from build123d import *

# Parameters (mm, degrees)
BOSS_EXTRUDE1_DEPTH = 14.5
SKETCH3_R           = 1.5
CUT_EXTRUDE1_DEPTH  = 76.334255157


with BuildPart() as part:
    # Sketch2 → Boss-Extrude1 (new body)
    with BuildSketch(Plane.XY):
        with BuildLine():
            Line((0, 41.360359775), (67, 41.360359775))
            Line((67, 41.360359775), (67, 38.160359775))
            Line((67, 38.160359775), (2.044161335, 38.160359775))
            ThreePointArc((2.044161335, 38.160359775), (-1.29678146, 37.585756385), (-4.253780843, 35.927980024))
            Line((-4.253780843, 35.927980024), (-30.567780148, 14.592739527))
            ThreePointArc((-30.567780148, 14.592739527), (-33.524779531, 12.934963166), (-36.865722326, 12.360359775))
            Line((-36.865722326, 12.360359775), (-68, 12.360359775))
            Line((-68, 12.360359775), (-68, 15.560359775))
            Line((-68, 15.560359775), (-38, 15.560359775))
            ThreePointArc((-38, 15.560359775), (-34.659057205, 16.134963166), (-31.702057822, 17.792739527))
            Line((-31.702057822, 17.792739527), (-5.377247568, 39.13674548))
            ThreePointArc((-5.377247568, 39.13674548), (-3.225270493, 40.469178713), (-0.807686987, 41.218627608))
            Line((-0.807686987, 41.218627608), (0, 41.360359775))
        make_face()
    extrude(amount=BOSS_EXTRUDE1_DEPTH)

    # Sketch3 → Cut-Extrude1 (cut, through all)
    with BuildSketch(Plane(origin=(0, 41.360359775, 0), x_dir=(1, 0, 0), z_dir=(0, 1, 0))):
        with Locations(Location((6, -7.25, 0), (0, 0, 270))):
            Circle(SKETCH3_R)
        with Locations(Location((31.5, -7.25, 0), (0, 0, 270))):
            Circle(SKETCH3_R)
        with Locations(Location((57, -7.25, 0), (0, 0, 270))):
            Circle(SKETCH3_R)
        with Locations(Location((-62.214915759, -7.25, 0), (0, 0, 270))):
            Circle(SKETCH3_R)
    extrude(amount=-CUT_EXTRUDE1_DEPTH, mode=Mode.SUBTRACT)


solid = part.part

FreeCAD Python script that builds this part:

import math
import FreeCAD as App
import Part
import Sketcher

V = App.Vector

doc = App.newDocument("Part")
params = doc.addObject("Spreadsheet::Sheet", "Params")
for row, (alias, value) in enumerate([
    ("sketch1_radius", "10 mm"),
    ("sketch1_width", "67 mm"),
    ("sketch1_width2", "30 mm"),
    ("sketch1_height", "3.2 mm"),
    ("pad1_length", "14.5 mm"),
    ("sketch2_diameter", "3 mm"),
], start=1):
    params.set(f"A{row}", alias)
    params.set(f"B{row}", "=" + value)
    params.setAlias(f"B{row}", alias)

body = doc.addObject("PartDesign::Body", "Body")

sketch1 = body.newObject("Sketcher::SketchObject", "Sketch")
sketch1.AttachmentSupport = (doc.getObject("XY_Plane"), [""])
sketch1.MapMode = "FlatFace"
sketch1.addGeometry(Part.LineSegment(V(67, 41.4, 0), V(0, 41.4, 0)), False)
sketch1.addGeometry(Part.LineSegment(V(0, 41.4, 0), V(-0.8, 41.2, 0)), False)
sketch1.addGeometry(Part.ArcOfCircle(Part.Circle(V(0.9, 31.4, 0), V(0, 0, 1), 10), math.radians(100), math.radians(129)), False)
sketch1.addGeometry(Part.LineSegment(V(-5.4, 39.1, 0), V(-31.7, 17.8, 0)), False)
sketch1.addGeometry(Part.ArcOfCircle(Part.Circle(V(-38, 25.6, 0), V(0, 0, 1), 10), math.radians(-90), math.radians(-51)), False)
sketch1.addGeometry(Part.LineSegment(V(-38, 15.6, 0), V(-68, 15.6, 0)), False)
sketch1.addGeometry(Part.LineSegment(V(-68, 15.6, 0), V(-68, 12.4, 0)), False)
sketch1.addGeometry(Part.LineSegment(V(-68, 12.4, 0), V(-36.9, 12.4, 0)), False)
sketch1.addGeometry(Part.ArcOfCircle(Part.Circle(V(-36.9, 22.4, 0), V(0, 0, 1), 10), math.radians(-90), math.radians(-51)), False)
sketch1.addGeometry(Part.LineSegment(V(-30.6, 14.6, 0), V(-4.3, 35.9, 0)), False)
sketch1.addGeometry(Part.ArcOfCircle(Part.Circle(V(2, 28.2, 0), V(0, 0, 1), 10), math.radians(90), math.radians(129)), False)
sketch1.addGeometry(Part.LineSegment(V(2, 38.2, 0), V(67, 38.2, 0)), False)
sketch1.addGeometry(Part.LineSegment(V(67, 38.2, 0), V(67, 41.4, 0)), False)
sketch1.addConstraint(Sketcher.Constraint("Coincident", 0, 2, 1, 1))
sketch1.addConstraint(Sketcher.Constraint("Tangent", 1, 2, 2, 1))
sketch1.addConstraint(Sketcher.Constraint("Tangent", 2, 2, 3, 1))
sketch1.addConstraint(Sketcher.Constraint("Tangent", 3, 2, 4, 2))
sketch1.addConstraint(Sketcher.Constraint("Tangent", 4, 1, 5, 1))
sketch1.addConstraint(Sketcher.Constraint("Coincident", 5, 2, 6, 1))
sketch1.addConstraint(Sketcher.Constraint("Coincident", 6, 2, 7, 1))
sketch1.addConstraint(Sketcher.Constraint("Tangent", 7, 2, 8, 1))
sketch1.addConstraint(Sketcher.Constraint("Tangent", 8, 2, 9, 1))
sketch1.addConstraint(Sketcher.Constraint("Tangent", 9, 2, 10, 2))
sketch1.addConstraint(Sketcher.Constraint("Tangent", 10, 1, 11, 1))
sketch1.addConstraint(Sketcher.Constraint("Coincident", 11, 2, 12, 1))
sketch1.addConstraint(Sketcher.Constraint("Coincident", 12, 2, 0, 1))
sketch1.addConstraint(Sketcher.Constraint("Horizontal", 0))
sketch1.addConstraint(Sketcher.Constraint("Horizontal", 5))
sketch1.addConstraint(Sketcher.Constraint("Vertical", 6))
sketch1.addConstraint(Sketcher.Constraint("Horizontal", 7))
sketch1.addConstraint(Sketcher.Constraint("Horizontal", 11))
sketch1.addConstraint(Sketcher.Constraint("Vertical", 12))
sketch1.addConstraint(Sketcher.Constraint("Equal", 2, 4))
sketch1.addConstraint(Sketcher.Constraint("Equal", 4, 8))
sketch1.addConstraint(Sketcher.Constraint("Equal", 8, 10))
sketch1.addConstraint(Sketcher.Constraint("PointOnObject", 0, 2, -2))
sketch1.addConstraint(Sketcher.Constraint("Parallel", 3, 9))
sketch1.addConstraint(Sketcher.Constraint("Equal", 6, 12))
sketch1.addConstraint(Sketcher.Constraint("Radius", 2, 10.0))
sketch1.addConstraint(Sketcher.Constraint("DistanceX", 0, 2, 0, 1, 67.0))
sketch1.addConstraint(Sketcher.Constraint("DistanceX", 5, 2, 5, 1, 30.0))
sketch1.addConstraint(Sketcher.Constraint("DistanceY", 6, 2, 6, 1, 3.2))
sketch1.addConstraint(Sketcher.Constraint("DistanceX", 4, 3, -1, 1, 38.0))
sketch1.addConstraint(Sketcher.Constraint("DistanceY", 8, 3, 0, 2, 19.0))
sketch1.addConstraint(Sketcher.Constraint("DistanceX", 11, 1, 11, 2, 64.955839))
sketch1.addConstraint(Sketcher.Constraint("Distance", 1, 0.820028))
sketch1.addConstraint(Sketcher.Constraint("DistanceX", 7, 1, 7, 2, 31.134278))
sketch1.addConstraint(Sketcher.Constraint("DistanceY", -1, 1, 4, 3, 25.56036))
sketch1.setExpression("Constraints[25]", "Params.sketch1_radius")
sketch1.setExpression("Constraints[26]", "Params.sketch1_width")
sketch1.setExpression("Constraints[27]", "Params.sketch1_width2")
sketch1.setExpression("Constraints[28]", "Params.sketch1_height")
pad1 = body.newObject("PartDesign::Pad", "Pad")
pad1.Profile = sketch1
pad1.setExpression("Length", "Params.pad1_length")

sketch2 = body.newObject("Sketcher::SketchObject", "Sketch001")
sketch2.AttachmentSupport = (doc.getObject("XZ_Plane"), [""])
sketch2.MapMode = "FlatFace"
sketch2.AttachmentOffset = App.Placement(V(0, 0, -41.36036), App.Rotation())
sketch2.addGeometry(Part.Circle(V(6, 7.2, 0), V(0, 0, 1), 1.5), False)
sketch2.addGeometry(Part.Circle(V(31.5, 7.2, 0), V(0, 0, 1), 1.5), False)
sketch2.addGeometry(Part.Circle(V(57, 7.2, 0), V(0, 0, 1), 1.5), False)
sketch2.addGeometry(Part.Circle(V(-62.2, 7.2, 0), V(0, 0, 1), 1.5), False)
sketch2.addConstraint(Sketcher.Constraint("Equal", 0, 1))
sketch2.addConstraint(Sketcher.Constraint("Equal", 1, 2))
sketch2.addConstraint(Sketcher.Constraint("Equal", 2, 3))
sketch2.addConstraint(Sketcher.Constraint("Horizontal", 0, 3, 1, 3))
sketch2.addConstraint(Sketcher.Constraint("Horizontal", 1, 3, 2, 3))
sketch2.addConstraint(Sketcher.Constraint("Horizontal", 2, 3, 3, 3))
sketch2.addConstraint(Sketcher.Constraint("Diameter", 0, 3.0))
sketch2.addConstraint(Sketcher.Constraint("DistanceX", -1, 1, 0, 3, 6.0))
sketch2.addConstraint(Sketcher.Constraint("DistanceX", -1, 1, 2, 3, 57.0))
sketch2.addConstraint(Sketcher.Constraint("DistanceX", -1, 1, 1, 3, 31.5))
sketch2.addConstraint(Sketcher.Constraint("DistanceY", -1, 1, 0, 3, 7.25))
sketch2.addConstraint(Sketcher.Constraint("DistanceX", 3, 3, -1, 1, 62.214916))
sketch2.setExpression("Constraints[6]", "Params.sketch2_diameter")
pocket1 = body.newObject("PartDesign::Pocket", "Pocket")
pocket1.Profile = sketch2
pocket1.Type = "ThroughAll"
pocket1.Reversed = True

doc.recompute()
